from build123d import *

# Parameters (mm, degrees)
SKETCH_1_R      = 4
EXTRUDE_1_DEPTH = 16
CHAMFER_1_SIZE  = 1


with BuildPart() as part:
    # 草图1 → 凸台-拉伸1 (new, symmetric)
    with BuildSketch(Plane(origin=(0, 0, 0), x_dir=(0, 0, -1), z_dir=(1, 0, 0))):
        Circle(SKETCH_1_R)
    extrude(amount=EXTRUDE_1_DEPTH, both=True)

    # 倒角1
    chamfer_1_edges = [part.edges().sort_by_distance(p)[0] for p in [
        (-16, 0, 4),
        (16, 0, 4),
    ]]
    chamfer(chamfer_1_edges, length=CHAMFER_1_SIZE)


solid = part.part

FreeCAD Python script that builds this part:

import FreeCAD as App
import Part
import Sketcher

V = App.Vector


def edges_at(feature, points):
    """Names of the edges that pass closest to the given points."""
    edges = feature.Shape.Edges
    near = lambda p: min(range(len(edges)), key=lambda i: edges[i].distToShape(Part.Vertex(*p))[0])
    return sorted({f"Edge{near(p) + 1}" for p in points})

doc = App.newDocument("Part")
body = doc.addObject("PartDesign::Body", "Body")

# Sketch on YZ plane
sketch1 = body.newObject("Sketcher::SketchObject", "Sketch")
sketch1.AttachmentSupport = (doc.getObject("YZ_Plane"), [""])
sketch1.MapMode = "FlatFace"
sketch1.addGeometry(Part.Circle(V(0, 0, 0), V(0, 0, 1), 4), False)
sketch1.addConstraint(Sketcher.Constraint("Coincident", 0, 3, -1, 1))
sketch1.addConstraint(Sketcher.Constraint("Diameter", 0, 8.0))
pad1 = body.newObject("PartDesign::Pad", "Pad")
pad1.Profile = sketch1
pad1.Length = 32
pad1.Midplane = True
doc.recompute()

chamfer = body.newObject("PartDesign::Chamfer", "Chamfer")
chamfer.Base = (pad1, edges_at(pad1, [(-16, 0, 4), (16, 0, 4)]))
chamfer.Size = 1

doc.recompute()
